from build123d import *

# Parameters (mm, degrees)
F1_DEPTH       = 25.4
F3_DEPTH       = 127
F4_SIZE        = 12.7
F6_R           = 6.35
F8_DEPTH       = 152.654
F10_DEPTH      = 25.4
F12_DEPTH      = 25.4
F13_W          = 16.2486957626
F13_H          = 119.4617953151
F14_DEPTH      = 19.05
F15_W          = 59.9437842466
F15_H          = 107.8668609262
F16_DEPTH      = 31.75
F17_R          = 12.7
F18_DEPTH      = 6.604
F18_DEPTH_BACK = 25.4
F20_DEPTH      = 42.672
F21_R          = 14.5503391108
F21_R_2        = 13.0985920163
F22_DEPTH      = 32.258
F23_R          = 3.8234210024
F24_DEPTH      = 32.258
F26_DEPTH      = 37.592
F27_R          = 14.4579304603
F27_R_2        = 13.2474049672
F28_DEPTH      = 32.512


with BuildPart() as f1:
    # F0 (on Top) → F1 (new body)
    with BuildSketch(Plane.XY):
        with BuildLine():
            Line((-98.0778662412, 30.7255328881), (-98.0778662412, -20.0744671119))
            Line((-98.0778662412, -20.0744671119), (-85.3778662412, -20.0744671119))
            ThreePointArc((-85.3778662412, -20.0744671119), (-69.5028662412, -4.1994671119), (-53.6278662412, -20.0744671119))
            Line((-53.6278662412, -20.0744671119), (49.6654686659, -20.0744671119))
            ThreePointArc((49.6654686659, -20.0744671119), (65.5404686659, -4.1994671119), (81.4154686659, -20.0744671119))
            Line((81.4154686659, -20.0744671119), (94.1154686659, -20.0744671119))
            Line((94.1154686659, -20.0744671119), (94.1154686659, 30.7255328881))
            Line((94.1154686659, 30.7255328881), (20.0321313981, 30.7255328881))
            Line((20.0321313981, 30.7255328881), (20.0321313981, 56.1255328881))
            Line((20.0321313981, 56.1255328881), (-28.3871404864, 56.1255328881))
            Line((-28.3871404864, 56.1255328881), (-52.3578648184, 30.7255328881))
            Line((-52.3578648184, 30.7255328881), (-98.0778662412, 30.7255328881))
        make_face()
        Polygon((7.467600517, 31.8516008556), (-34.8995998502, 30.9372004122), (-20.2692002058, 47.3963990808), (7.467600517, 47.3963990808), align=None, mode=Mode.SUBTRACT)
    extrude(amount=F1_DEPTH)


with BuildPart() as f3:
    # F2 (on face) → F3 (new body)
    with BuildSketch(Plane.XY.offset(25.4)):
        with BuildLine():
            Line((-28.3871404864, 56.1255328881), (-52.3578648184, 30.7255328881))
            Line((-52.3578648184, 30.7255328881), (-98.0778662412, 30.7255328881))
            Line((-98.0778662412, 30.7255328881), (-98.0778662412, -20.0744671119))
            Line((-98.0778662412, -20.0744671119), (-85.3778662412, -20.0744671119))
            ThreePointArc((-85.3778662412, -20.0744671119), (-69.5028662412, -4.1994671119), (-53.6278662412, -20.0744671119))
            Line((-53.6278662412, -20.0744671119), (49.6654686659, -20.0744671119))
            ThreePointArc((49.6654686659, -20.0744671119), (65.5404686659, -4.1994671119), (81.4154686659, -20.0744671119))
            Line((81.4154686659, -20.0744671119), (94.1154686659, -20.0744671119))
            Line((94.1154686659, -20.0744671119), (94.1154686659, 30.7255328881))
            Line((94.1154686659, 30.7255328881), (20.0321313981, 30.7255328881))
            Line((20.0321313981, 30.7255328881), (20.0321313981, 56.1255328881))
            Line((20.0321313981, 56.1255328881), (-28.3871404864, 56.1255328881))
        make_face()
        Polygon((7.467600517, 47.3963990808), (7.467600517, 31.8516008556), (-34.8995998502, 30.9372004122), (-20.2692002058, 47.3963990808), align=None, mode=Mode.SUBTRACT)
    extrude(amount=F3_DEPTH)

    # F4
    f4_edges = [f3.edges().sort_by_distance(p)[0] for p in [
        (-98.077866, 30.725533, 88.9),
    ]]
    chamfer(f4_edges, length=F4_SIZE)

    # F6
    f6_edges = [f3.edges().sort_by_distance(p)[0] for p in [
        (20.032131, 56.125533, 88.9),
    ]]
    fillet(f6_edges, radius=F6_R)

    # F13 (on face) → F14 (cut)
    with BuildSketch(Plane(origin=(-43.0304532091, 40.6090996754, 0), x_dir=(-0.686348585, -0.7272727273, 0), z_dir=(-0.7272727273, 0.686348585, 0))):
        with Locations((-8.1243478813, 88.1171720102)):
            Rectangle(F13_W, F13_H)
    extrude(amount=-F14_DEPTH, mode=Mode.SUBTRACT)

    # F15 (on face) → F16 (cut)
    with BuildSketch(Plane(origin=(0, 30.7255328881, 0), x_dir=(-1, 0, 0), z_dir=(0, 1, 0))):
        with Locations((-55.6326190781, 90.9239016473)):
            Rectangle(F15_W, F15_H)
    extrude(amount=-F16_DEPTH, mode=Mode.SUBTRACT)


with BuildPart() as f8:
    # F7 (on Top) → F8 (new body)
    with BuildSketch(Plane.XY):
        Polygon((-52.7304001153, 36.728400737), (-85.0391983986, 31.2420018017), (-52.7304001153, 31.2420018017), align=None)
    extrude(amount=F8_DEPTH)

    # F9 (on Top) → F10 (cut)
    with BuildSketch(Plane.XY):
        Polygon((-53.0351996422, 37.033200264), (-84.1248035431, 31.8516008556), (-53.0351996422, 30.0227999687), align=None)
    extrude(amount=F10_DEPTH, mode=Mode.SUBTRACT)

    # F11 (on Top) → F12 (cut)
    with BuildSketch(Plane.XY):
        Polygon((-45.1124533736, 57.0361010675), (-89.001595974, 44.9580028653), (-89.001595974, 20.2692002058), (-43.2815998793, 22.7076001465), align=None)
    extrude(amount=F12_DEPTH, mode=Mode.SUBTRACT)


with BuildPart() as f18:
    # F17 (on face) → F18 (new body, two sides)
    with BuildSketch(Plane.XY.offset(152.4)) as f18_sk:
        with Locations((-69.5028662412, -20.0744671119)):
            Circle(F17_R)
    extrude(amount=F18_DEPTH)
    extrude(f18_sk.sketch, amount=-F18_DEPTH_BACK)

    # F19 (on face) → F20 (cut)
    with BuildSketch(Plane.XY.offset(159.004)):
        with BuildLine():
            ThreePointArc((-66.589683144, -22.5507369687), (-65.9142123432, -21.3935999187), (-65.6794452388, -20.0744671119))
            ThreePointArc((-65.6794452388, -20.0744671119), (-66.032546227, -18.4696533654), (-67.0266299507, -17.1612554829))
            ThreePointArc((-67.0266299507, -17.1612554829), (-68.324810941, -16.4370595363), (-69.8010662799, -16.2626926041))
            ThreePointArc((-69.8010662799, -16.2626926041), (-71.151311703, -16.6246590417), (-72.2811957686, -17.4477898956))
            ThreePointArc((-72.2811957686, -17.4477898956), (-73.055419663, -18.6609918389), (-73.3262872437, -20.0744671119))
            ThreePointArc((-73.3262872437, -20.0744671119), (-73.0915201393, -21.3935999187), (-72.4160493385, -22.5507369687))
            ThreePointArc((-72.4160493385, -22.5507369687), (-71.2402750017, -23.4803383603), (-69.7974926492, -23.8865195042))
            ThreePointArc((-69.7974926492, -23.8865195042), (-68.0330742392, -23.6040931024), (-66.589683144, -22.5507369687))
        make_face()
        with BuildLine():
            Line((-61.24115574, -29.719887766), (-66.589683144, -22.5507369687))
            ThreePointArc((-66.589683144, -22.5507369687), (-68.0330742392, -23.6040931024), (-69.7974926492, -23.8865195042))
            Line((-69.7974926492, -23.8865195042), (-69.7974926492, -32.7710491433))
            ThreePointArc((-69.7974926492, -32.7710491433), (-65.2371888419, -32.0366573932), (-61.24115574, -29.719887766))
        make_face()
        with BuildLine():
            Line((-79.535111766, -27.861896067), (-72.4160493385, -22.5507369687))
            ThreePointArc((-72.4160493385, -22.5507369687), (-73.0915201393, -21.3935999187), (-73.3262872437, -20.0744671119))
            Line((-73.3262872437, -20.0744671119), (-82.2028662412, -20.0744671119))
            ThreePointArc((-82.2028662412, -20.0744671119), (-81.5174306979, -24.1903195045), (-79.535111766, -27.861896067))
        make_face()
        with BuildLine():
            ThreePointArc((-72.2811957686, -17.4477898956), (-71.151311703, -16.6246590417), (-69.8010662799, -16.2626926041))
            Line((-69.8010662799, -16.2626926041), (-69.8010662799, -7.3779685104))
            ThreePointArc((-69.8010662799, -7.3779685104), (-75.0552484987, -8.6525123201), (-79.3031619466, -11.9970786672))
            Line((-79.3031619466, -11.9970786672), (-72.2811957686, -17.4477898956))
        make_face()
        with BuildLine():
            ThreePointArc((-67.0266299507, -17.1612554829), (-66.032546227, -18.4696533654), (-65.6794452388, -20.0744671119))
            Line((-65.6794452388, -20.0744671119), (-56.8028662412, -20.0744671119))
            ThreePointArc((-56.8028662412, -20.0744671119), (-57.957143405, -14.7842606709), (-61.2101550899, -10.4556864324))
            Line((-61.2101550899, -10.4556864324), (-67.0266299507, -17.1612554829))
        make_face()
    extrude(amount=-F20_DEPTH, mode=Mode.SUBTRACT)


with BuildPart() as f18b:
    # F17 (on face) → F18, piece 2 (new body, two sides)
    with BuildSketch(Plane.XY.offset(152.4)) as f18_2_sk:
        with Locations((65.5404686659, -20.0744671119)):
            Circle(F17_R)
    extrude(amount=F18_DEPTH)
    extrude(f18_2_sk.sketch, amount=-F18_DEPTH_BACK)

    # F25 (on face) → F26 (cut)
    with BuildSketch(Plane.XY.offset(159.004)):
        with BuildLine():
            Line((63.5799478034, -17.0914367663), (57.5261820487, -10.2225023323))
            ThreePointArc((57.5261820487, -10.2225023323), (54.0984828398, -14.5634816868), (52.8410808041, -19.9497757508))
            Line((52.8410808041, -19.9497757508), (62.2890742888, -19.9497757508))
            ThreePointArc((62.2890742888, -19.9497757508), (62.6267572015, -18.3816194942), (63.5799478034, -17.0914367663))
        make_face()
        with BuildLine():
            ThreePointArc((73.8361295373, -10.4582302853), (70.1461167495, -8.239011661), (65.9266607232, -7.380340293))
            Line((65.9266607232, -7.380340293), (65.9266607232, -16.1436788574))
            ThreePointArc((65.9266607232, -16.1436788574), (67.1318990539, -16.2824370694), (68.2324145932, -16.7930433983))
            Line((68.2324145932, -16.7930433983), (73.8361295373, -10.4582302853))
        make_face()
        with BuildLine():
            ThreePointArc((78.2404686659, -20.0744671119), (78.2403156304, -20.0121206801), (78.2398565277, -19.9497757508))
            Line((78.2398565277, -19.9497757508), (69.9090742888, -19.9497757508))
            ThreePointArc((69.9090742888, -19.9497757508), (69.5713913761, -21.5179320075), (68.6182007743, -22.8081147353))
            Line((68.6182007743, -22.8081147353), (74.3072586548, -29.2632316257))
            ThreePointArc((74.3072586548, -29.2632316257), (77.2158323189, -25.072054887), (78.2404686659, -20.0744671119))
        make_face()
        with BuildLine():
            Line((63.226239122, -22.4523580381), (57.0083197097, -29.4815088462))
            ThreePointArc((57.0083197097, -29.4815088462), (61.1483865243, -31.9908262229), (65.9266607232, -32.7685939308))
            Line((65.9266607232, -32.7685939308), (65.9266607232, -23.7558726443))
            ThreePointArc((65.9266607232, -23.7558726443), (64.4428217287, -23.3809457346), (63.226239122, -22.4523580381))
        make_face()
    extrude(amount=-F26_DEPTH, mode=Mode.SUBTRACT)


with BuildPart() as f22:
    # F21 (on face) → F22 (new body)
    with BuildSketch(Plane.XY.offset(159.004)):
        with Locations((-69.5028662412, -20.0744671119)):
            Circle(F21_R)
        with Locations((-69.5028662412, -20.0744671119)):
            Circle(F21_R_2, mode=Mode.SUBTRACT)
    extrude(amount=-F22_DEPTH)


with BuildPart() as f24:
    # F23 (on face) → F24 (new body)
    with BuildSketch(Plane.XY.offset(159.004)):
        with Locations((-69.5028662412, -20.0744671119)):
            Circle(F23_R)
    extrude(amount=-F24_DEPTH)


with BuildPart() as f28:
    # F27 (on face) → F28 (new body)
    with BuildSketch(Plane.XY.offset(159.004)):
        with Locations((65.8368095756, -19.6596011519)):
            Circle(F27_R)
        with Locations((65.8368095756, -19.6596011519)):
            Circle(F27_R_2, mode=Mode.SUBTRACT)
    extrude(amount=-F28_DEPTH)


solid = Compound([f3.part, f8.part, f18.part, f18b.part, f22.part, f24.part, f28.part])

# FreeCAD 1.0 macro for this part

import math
import FreeCAD as App
import Part
import Sketcher
from FreeCAD import Vector
Q = App.Units.Quantity


def edges_at(feature, points):
    """Names of the edges that pass closest to the given points."""
    edges = feature.Shape.Edges
    near = lambda p: min(range(len(edges)), key=lambda i: edges[i].distToShape(Part.Vertex(*p))[0])
    return sorted({f"Edge{near(p) + 1}" for p in points})

doc = App.newDocument("Part")
body = doc.addObject("PartDesign::Body", "Body")

# Sketch on XY plane
sketch1 = body.newObject("Sketcher::SketchObject", "Sketch")
sketch1.AttachmentSupport = (doc.getObject("XY_Plane"), [""])
sketch1.MapMode = "FlatFace"
sketch1.addGeometry([
    Part.LineSegment(Vector(-98, 31, 0), Vector(-98, -20, 0)),  # 0
    Part.LineSegment(Vector(-98, -20, 0), Vector(-85, -20, 0)),  # 1
    Part.ArcOfCircle(Part.Circle(Vector(-70, -20, 0), Vector(0, 0, 1), 16), math.radians(0), math.radians(180)),  # 2
    Part.LineSegment(Vector(-54, -20, 0), Vector(50, -20, 0)),  # 3
    Part.ArcOfCircle(Part.Circle(Vector(66, -20, 0), Vector(0, 0, 1), 16), math.radians(0), math.radians(180)),  # 4
    Part.LineSegment(Vector(81, -20, 0), Vector(94, -20, 0)),  # 5
    Part.LineSegment(Vector(94, -20, 0), Vector(94, 31, 0)),  # 6
    Part.LineSegment(Vector(94, 31, 0), Vector(20, 31, 0)),  # 7
    Part.LineSegment(Vector(20, 31, 0), Vector(20, 56, 0)),  # 8
    Part.LineSegment(Vector(20, 56, 0), Vector(-28, 56, 0)),  # 9
    Part.LineSegment(Vector(-28, 56, 0), Vector(-52, 31, 0)),  # 10
    Part.LineSegment(Vector(-52, 31, 0), Vector(-98, 31, 0)),  # 11
    Part.LineSegment(Vector(7, 47, 0), Vector(7, 32, 0)),  # 12
    Part.LineSegment(Vector(7, 32, 0), Vector(-35, 31, 0)),  # 13
    Part.LineSegment(Vector(-35, 31, 0), Vector(-20, 47, 0)),  # 14
    Part.LineSegment(Vector(-20, 47, 0), Vector(7, 47, 0)),  # 15
], False)
sketch1.addConstraint([
    Sketcher.Constraint("Coincident", 0, 2, 1, 1),
    Sketcher.Constraint("Coincident", 1, 2, 2, 2),
    Sketcher.Constraint("Coincident", 2, 1, 3, 1),
    Sketcher.Constraint("Coincident", 3, 2, 4, 2),
    Sketcher.Constraint("Coincident", 4, 1, 5, 1),
    Sketcher.Constraint("Coincident", 5, 2, 6, 1),
    Sketcher.Constraint("Coincident", 6, 2, 7, 1),
    Sketcher.Constraint("Coincident", 7, 2, 8, 1),
    Sketcher.Constraint("Coincident", 8, 2, 9, 1),
    Sketcher.Constraint("Coincident", 9, 2, 10, 1),
    Sketcher.Constraint("Coincident", 10, 2, 11, 1),
    Sketcher.Constraint("Coincident", 11, 2, 0, 1),
    Sketcher.Constraint("Coincident", 12, 2, 13, 1),
    Sketcher.Constraint("Coincident", 13, 2, 14, 1),
    Sketcher.Constraint("Coincident", 14, 2, 15, 1),
    Sketcher.Constraint("Coincident", 15, 2, 12, 1),
    Sketcher.Constraint("Vertical", 0),
    Sketcher.Constraint("Horizontal", 1),
    Sketcher.Constraint("Horizontal", 3),
    Sketcher.Constraint("Horizontal", 5),
    Sketcher.Constraint("Vertical", 6),
    Sketcher.Constraint("Horizontal", 7),
    Sketcher.Constraint("Vertical", 8),
    Sketcher.Constraint("Horizontal", 9),
    Sketcher.Constraint("Horizontal", 11),
    Sketcher.Constraint("Vertical", 12),
    Sketcher.Constraint("Horizontal", 15),
    Sketcher.Constraint("Equal", 2, 4),
    Sketcher.Constraint("Horizontal", 2, 3, 4, 3),
    Sketcher.Constraint("Horizontal", 4, 3, 0, 2),
    Sketcher.Constraint("Horizontal", 1, 2, 2, 1),
    Sketcher.Constraint("Horizontal", 3, 2, 4, 1),
    Sketcher.Constraint("Horizontal", 7, 2, 10, 2),
    Sketcher.Constraint("Equal", 1, 5),
    Sketcher.Constraint("DistanceY", 0, 2, 0, 1, Q("2 in")),
    Sketcher.Constraint("DistanceY", 8, 1, 8, 2, Q("1 in")),
    Sketcher.Constraint("DistanceX", 1, 1, 1, 2, Q("0.5 in")),
    Sketcher.Constraint("DistanceX", 11, 2, 11, 1, Q("1.8000001 in")),
    Sketcher.Constraint("Radius", 2, Q("0.625 in")),
    Sketcher.Constraint("DistanceX", 2, 1, 7, 2, Q("2.8999999 in")),
    Sketcher.Constraint("DistanceX", 15, 1, 15, 2, Q("1.092 in")),
    Sketcher.Constraint("DistanceY", 12, 2, 12, 1, Q("0.6119999 in")),
    Sketcher.Constraint("Distance", 10, Q("1.375 in")),
    Sketcher.Constraint("DistanceX", -1, 1, 12, 2, Q("0.294 in")),
    Sketcher.Constraint("DistanceY", -1, 1, 12, 2, Q("1.254 in")),
    Sketcher.Constraint("DistanceX", 13, 2, -1, 1, Q("1.374 in")),
    Sketcher.Constraint("DistanceY", -1, 1, 13, 2, Q("1.218 in")),
    Sketcher.Constraint("DistanceX", 3, 1, 3, 2, 103.293335),
    Sketcher.Constraint("DistanceX", -1, 1, 4, 3, 65.540469),
    Sketcher.Constraint("DistanceY", 2, 3, -1, 1, 20.074467),
])
pad1 = body.newObject("PartDesign::Pad", "Pad")
pad1.Profile = sketch1
pad1.Length = Q("1 in")
body2 = doc.addObject("PartDesign::Body", "Body001")

# Sketch on XY plane
sketch2 = body2.newObject("Sketcher::SketchObject", "Sketch001")
sketch2.AttachmentSupport = (doc.getObject("XY_Plane001"), [""])
sketch2.MapMode = "FlatFace"
sketch2.AttachmentOffset = App.Placement(Vector(0, 0, 1 * 25.4), App.Rotation())
sketch2.addGeometry([
    Part.LineSegment(Vector(-28, 56, 0), Vector(-52, 31, 0)),  # 0
    Part.LineSegment(Vector(-52, 31, 0), Vector(-98, 31, 0)),  # 1
    Part.LineSegment(Vector(-98, 31, 0), Vector(-98, -20, 0)),  # 2
    Part.LineSegment(Vector(-98, -20, 0), Vector(-85, -20, 0)),  # 3
    Part.ArcOfCircle(Part.Circle(Vector(-70, -20, 0), Vector(0, 0, 1), 16), math.radians(0), math.radians(180)),  # 4
    Part.LineSegment(Vector(-54, -20, 0), Vector(50, -20, 0)),  # 5
    Part.ArcOfCircle(Part.Circle(Vector(66, -20, 0), Vector(0, 0, 1), 16), math.radians(0), math.radians(180)),  # 6
    Part.LineSegment(Vector(81, -20, 0), Vector(94, -20, 0)),  # 7
    Part.LineSegment(Vector(94, -20, 0), Vector(94, 31, 0)),  # 8
    Part.LineSegment(Vector(94, 31, 0), Vector(20, 31, 0)),  # 9
    Part.LineSegment(Vector(20, 31, 0), Vector(20, 56, 0)),  # 10
    Part.LineSegment(Vector(20, 56, 0), Vector(-28, 56, 0)),  # 11
    Part.LineSegment(Vector(-20, 47, 0), Vector(7, 47, 0)),  # 12
    Part.LineSegment(Vector(7, 47, 0), Vector(7, 32, 0)),  # 13
    Part.LineSegment(Vector(7, 32, 0), Vector(-35, 31, 0)),  # 14
    Part.LineSegment(Vector(-35, 31, 0), Vector(-20, 47, 0)),  # 15
], False)
sketch2.addConstraint([
    Sketcher.Constraint("Coincident", 0, 2, 1, 1),
    Sketcher.Constraint("Coincident", 1, 2, 2, 1),
    Sketcher.Constraint("Coincident", 2, 2, 3, 1),
    Sketcher.Constraint("Coincident", 3, 2, 4, 2),
    Sketcher.Constraint("Coincident", 4, 1, 5, 1),
    Sketcher.Constraint("Coincident", 5, 2, 6, 2),
    Sketcher.Constraint("Coincident", 6, 1, 7, 1),
    Sketcher.Constraint("Coincident", 7, 2, 8, 1),
    Sketcher.Constraint("Coincident", 8, 2, 9, 1),
    Sketcher.Constraint("Coincident", 9, 2, 10, 1),
    Sketcher.Constraint("Coincident", 10, 2, 11, 1),
    Sketcher.Constraint("Coincident", 11, 2, 0, 1),
    Sketcher.Constraint("Coincident", 12, 2, 13, 1),
    Sketcher.Constraint("Coincident", 13, 2, 14, 1),
    Sketcher.Constraint("Coincident", 14, 2, 15, 1),
    Sketcher.Constraint("Coincident", 15, 2, 12, 1),
    Sketcher.Constraint("Horizontal", 1),
    Sketcher.Constraint("Vertical", 2),
    Sketcher.Constraint("Horizontal", 3),
    Sketcher.Constraint("Horizontal", 5),
    Sketcher.Constraint("Horizontal", 7),
    Sketcher.Constraint("Vertical", 8),
    Sketcher.Constraint("Horizontal", 9),
    Sketcher.Constraint("Vertical", 10),
    Sketcher.Constraint("Horizontal", 11),
    Sketcher.Constraint("Horizontal", 12),
    Sketcher.Constraint("Vertical", 13),
    Sketcher.Constraint("Equal", 4, 6),
    Sketcher.Constraint("Horizontal", 4, 3, 6, 3),
    Sketcher.Constraint("Horizontal", 6, 3, 2, 2),
    Sketcher.Constraint("Horizontal", 3, 2, 4, 1),
    Sketcher.Constraint("Horizontal", 5, 2, 6, 1),
    Sketcher.Constraint("Horizontal", 1, 2, 8, 2),
    Sketcher.Constraint("Equal", 3, 7),
    Sketcher.Constraint("DistanceY", 2, 2, 2, 1, Q("2 in")),
    Sketcher.Constraint("DistanceY", 10, 1, 10, 2, Q("1 in")),
    Sketcher.Constraint("DistanceX", 1, 2, 1, 1, Q("1.8000001 in")),
    Sketcher.Constraint("DistanceX", 3, 1, 3, 2, Q("0.5 in")),
    Sketcher.Constraint("Radius", 4, Q("0.625 in")),
    Sketcher.Constraint("DistanceX", 12, 1, 12, 2, Q("1.092 in")),
    Sketcher.Constraint("DistanceY", 13, 2, 13, 1, Q("0.6119999 in")),
    Sketcher.Constraint("DistanceX", 0, 2, 9, 2, Q("2.8499999 in")),
    Sketcher.Constraint("Distance", 0, Q("1.375 in")),
    Sketcher.Constraint("DistanceX", -1, 1, 12, 2, Q("0.294 in")),
    Sketcher.Constraint("DistanceY", -1, 1, 12, 2, Q("1.866 in")),
    Sketcher.Constraint("DistanceX", 14, 2, -1, 1, Q("1.374 in")),
    Sketcher.Constraint("DistanceY", -1, 1, 14, 2, Q("1.218 in")),
    Sketcher.Constraint("DistanceX", 5, 1, 5, 2, 103.293335),
    Sketcher.Constraint("DistanceX", -1, 1, 6, 3, 65.540469),
    Sketcher.Constraint("DistanceY", 4, 3, -1, 1, 20.074467),
])
pad2 = body2.newObject("PartDesign::Pad", "Pad001")
pad2.Profile = sketch2
pad2.Length = Q("5 in")
doc.recompute()

chamfer = body2.newObject("PartDesign::Chamfer", "Chamfer")
chamfer.Base = (pad2, edges_at(pad2, [(-98.078, 30.726, 88.9)]))
chamfer.Size = Q("0.5 in")
doc.recompute()

fillet = body2.newObject("PartDesign::Fillet", "Fillet")
fillet.Base = (chamfer, edges_at(chamfer, [(20.032, 56.126, 88.9)]))
fillet.Radius = Q("0.25 in")

# Sketch on an angled plane
sketch3 = body2.newObject("Sketcher::SketchObject", "Sketch002")
sketch3.Placement = App.Placement(Vector(-43.030453, 40.6091, 0), App.Rotation(Vector(-0.686348585, -0.727272727, 0), Vector(0, 0, 1), Vector(-0.727272727, 0.686348585, 0), "ZXY"))
sketch3.addGeometry([
    Part.LineSegment(Vector(-16, 148, 0), Vector(-16, 28, 0)),
    Part.LineSegment(Vector(-16, 28, 0), Vector(0, 28, 0)),
    Part.LineSegment(Vector(0, 28, 0), Vector(0, 148, 0)),
    Part.LineSegment(Vector(0, 148, 0), Vector(-16, 148, 0)),
], False)
sketch3.addConstraint([
    Sketcher.Constraint("Coincident", 0, 2, 1, 1),
    Sketcher.Constraint("Coincident", 1, 2, 2, 1),
    Sketcher.Constraint("Coincident", 2, 2, 3, 1),
    Sketcher.Constraint("Coincident", 3, 2, 0, 1),
    Sketcher.Constraint("Vertical", 0),
    Sketcher.Constraint("Horizontal", 1),
    Sketcher.Constraint("Vertical", 2),
    Sketcher.Constraint("Horizontal", 3),
    Sketcher.Constraint("PointOnObject", 1, 2, -2),
    Sketcher.Constraint("DistanceX", 1, 1, 1, 2, 16.248696),
    Sketcher.Constraint("DistanceY", 0, 2, 0, 1, 119.461795),
    Sketcher.Constraint("DistanceY", -1, 1, 2, 2, 147.84807),
])
pocket1 = body2.newObject("PartDesign::Pocket", "Pocket")
pocket1.Profile = sketch3
pocket1.Length = Q("0.75 in")

# Sketch on XZ plane
sketch4 = body2.newObject("Sketcher::SketchObject", "Sketch003")
sketch4.AttachmentSupport = (doc.getObject("XZ_Plane001"), [""])
sketch4.MapMode = "FlatFace"
sketch4.AttachmentOffset = App.Placement(Vector(0, 0, -30.725533), App.Rotation())
sketch4.addGeometry([
    Part.LineSegment(Vector(86, 145, 0), Vector(86, 37, 0)),
    Part.LineSegment(Vector(86, 37, 0), Vector(26, 37, 0)),
    Part.LineSegment(Vector(26, 37, 0), Vector(26, 145, 0)),
    Part.LineSegment(Vector(26, 145, 0), Vector(86, 145, 0)),
], False)
sketch4.addConstraint([
    Sketcher.Constraint("Coincident", 0, 2, 1, 1),
    Sketcher.Constraint("Coincident", 1, 2, 2, 1),
    Sketcher.Constraint("Coincident", 2, 2, 3, 1),
    Sketcher.Constraint("Coincident", 3, 2, 0, 1),
    Sketcher.Constraint("Vertical", 0),
    Sketcher.Constraint("Horizontal", 1),
    Sketcher.Constraint("Vertical", 2),
    Sketcher.Constraint("Horizontal", 3),
    Sketcher.Constraint("DistanceY", 0, 2, 0, 1, 107.866861),
    Sketcher.Constraint("DistanceX", 1, 2, 1, 1, 59.943784),
    Sketcher.Constraint("DistanceX", -1, 1, 0, 2, 85.604511),
    Sketcher.Constraint("DistanceY", -1, 1, 0, 2, 36.990471),
])
pocket2 = body2.newObject("PartDesign::Pocket", "Pocket001")
pocket2.Profile = sketch4
pocket2.Length = Q("1.25 in")
pocket2.Reversed = True
body3 = doc.addObject("PartDesign::Body", "Body002")

# Sketch on XY plane
sketch5 = body3.newObject("Sketcher::SketchObject", "Sketch004")
sketch5.AttachmentSupport = (doc.getObject("XY_Plane002"), [""])
sketch5.MapMode = "FlatFace"
sketch5.addGeometry([
    Part.LineSegment(Vector(-53, 37, 0), Vector(-85, 31, 0)),
    Part.LineSegment(Vector(-85, 31, 0), Vector(-53, 31, 0)),
    Part.LineSegment(Vector(-53, 31, 0), Vector(-53, 37, 0)),
], False)
sketch5.addConstraint([
    Sketcher.Constraint("Coincident", 0, 2, 1, 1),
    Sketcher.Constraint("Coincident", 1, 2, 2, 1),
    Sketcher.Constraint("Coincident", 2, 2, 0, 1),
    Sketcher.Constraint("Horizontal", 1),
    Sketcher.Constraint("Vertical", 2),
    Sketcher.Constraint("DistanceX", 1, 1, 1, 2, Q("1.2719999 in")),
    Sketcher.Constraint("DistanceY", 2, 1, 2, 2, Q("0.216 in")),
    Sketcher.Constraint("DistanceY", -1, 1, 0, 2, Q("1.2300001 in")),
    Sketcher.Constraint("DistanceX", 0, 2, -1, 1, Q("3.3479999 in")),
])
pad3 = body3.newObject("PartDesign::Pad", "Pad002")
pad3.Profile = sketch5
pad3.Length = Q("6.01 in")

# Sketch on XY plane
sketch6 = body3.newObject("Sketcher::SketchObject", "Sketch005")
sketch6.AttachmentSupport = (doc.getObject("XY_Plane002"), [""])
sketch6.MapMode = "FlatFace"
sketch6.addGeometry([
    Part.LineSegment(Vector(-53, 37, 0), Vector(-84, 32, 0)),
    Part.LineSegment(Vector(-84, 32, 0), Vector(-53, 30, 0)),
    Part.LineSegment(Vector(-53, 30, 0), Vector(-53, 37, 0)),
], False)
sketch6.addConstraint([
    Sketcher.Constraint("Coincident", 0, 2, 1, 1),
    Sketcher.Constraint("Coincident", 1, 2, 2, 1),
    Sketcher.Constraint("Coincident", 2, 2, 0, 1),
    Sketcher.Constraint("Vertical", 2),
    Sketcher.Constraint("DistanceY", 2, 1, 2, 2, Q("0.276 in")),
    Sketcher.Constraint("DistanceX", 0, 2, -1, 1, Q("3.3120001 in")),
    Sketcher.Constraint("DistanceY", -1, 1, 0, 2, Q("1.254 in")),
    Sketcher.Constraint("DistanceX", 1, 2, -1, 1, Q("2.088 in")),
    Sketcher.Constraint("DistanceY", -1, 1, 1, 2, Q("1.182 in")),
])
pocket3 = body3.newObject("PartDesign::Pocket", "Pocket002")
pocket3.Profile = sketch6
pocket3.Length = Q("1 in")
pocket3.Reversed = True

# Sketch on XY plane
sketch7 = body3.newObject("Sketcher::SketchObject", "Sketch006")
sketch7.AttachmentSupport = (doc.getObject("XY_Plane002"), [""])
sketch7.MapMode = "FlatFace"
sketch7.addGeometry([
    Part.LineSegment(Vector(-45, 57, 0), Vector(-89, 45, 0)),
    Part.LineSegment(Vector(-89, 45, 0), Vector(-89, 20, 0)),
    Part.LineSegment(Vector(-89, 20, 0), Vector(-43, 23, 0)),
    Part.LineSegment(Vector(-43, 23, 0), Vector(-45, 57, 0)),
], False)
sketch7.addConstraint([
    Sketcher.Constraint("Coincident", 0, 2, 1, 1),
    Sketcher.Constraint("Coincident", 1, 2, 2, 1),
    Sketcher.Constraint("Coincident", 2, 2, 3, 1),
    Sketcher.Constraint("Coincident", 3, 2, 0, 1),
    Sketcher.Constraint("Vertical", 1),
    Sketcher.Constraint("Perpendicular", 2, 3),
    Sketcher.Constraint("DistanceX", 1, 2, 2, 2, Q("1.7999998 in")),
    Sketcher.Constraint("DistanceY", 1, 2, 1, 1, Q("0.9720001 in")),
    Sketcher.Constraint("DistanceY", -1, 1, 0, 2, Q("1.7700001 in")),
    Sketcher.Constraint("DistanceX", 0, 2, -1, 1, Q("3.5039998 in")),
    Sketcher.Constraint("DistanceY", -1, 1, 2, 2, Q("0.894 in")),
    Sketcher.Constraint("DistanceY", -1, 1, 3, 2, 57.036101),
])
pocket4 = body3.newObject("PartDesign::Pocket", "Pocket003")
pocket4.Profile = sketch7
pocket4.Length = Q("1 in")
pocket4.Reversed = True
body4 = doc.addObject("PartDesign::Body", "Body003")
body4.AllowCompound = True

# Sketch on XY plane
sketch8 = body4.newObject("Sketcher::SketchObject", "Sketch007")
sketch8.AttachmentSupport = (doc.getObject("XY_Plane003"), [""])
sketch8.MapMode = "FlatFace"
sketch8.AttachmentOffset = App.Placement(Vector(0, 0, 6 * 25.4), App.Rotation())
sketch8.addGeometry(Part.Circle(Vector(-70, -20, 0), Vector(0, 0, 1), 13), False)
sketch8.addConstraint([
    Sketcher.Constraint("Diameter", 0, Q("1 in")),
    Sketcher.Constraint("DistanceX", 0, 3, -1, 1, 69.502866),
    Sketcher.Constraint("DistanceY", 0, 3, -1, 1, 20.074467),
])
pad4 = body4.newObject("PartDesign::Pad", "Pad003")
pad4.Profile = sketch8
pad4.Type = "TwoLengths"
pad4.Length = Q("0.26 in")
pad4.Length2 = Q("1 in")

# Sketch on XY plane
sketch9 = body4.newObject("Sketcher::SketchObject", "Sketch008")
sketch9.AttachmentSupport = (doc.getObject("XY_Plane003"), [""])
sketch9.MapMode = "FlatFace"
sketch9.AttachmentOffset = App.Placement(Vector(0, 0, 6.26 * 25.4), App.Rotation())
sketch9.addGeometry([
    Part.ArcOfCircle(Part.Circle(Vector(-69.5, -20.1, 0), Vector(0, 0, 1), 3.8), math.radians(-40), math.radians(0)),  # 0
    Part.LineSegment(Vector(-65.7, -20.1, 0), Vector(-56.8, -20.1, 0)),  # 1
    Part.ArcOfCircle(Part.Circle(Vector(-69.5, -20.1, 0), Vector(0, 0, 1), 12.7), math.radians(0), math.radians(49)),  # 2
    Part.LineSegment(Vector(-61.2, -10.5, 0), Vector(-67, -17.2, 0)),  # 3
    Part.ArcOfCircle(Part.Circle(Vector(-69.5, -20.1, 0), Vector(0, 0, 1), 3.8), math.radians(50), math.radians(94)),  # 4
    Part.LineSegment(Vector(-69.8, -16.3, 0), Vector(-69.8, -7.4, 0)),  # 5
    Part.ArcOfCircle(Part.Circle(Vector(-69.5, -20.1, 0), Vector(0, 0, 1), 12.7), math.radians(91), math.radians(141)),  # 6
    Part.LineSegment(Vector(-79.3, -12, 0), Vector(-72.3, -17.4, 0)),  # 7
    Part.ArcOfCircle(Part.Circle(Vector(-69.5, -20.1, 0), Vector(0, 0, 1), 3.8), math.radians(137), math.radians(180)),  # 8
    Part.LineSegment(Vector(-73.3, -20.1, 0), Vector(-82.2, -20.1, 0)),  # 9
    Part.ArcOfCircle(Part.Circle(Vector(-69.5, -20.1, 0), Vector(0, 0, 1), 12.7), math.radians(180), math.radians(218)),  # 10
    Part.LineSegment(Vector(-79.5, -27.9, 0), Vector(-72.4, -22.6, 0)),  # 11
    Part.ArcOfCircle(Part.Circle(Vector(-69.5, -20.1, 0), Vector(0, 0, 1), 3.8), math.radians(-140), math.radians(-94)),  # 12
    Part.LineSegment(Vector(-69.8, -23.9, 0), Vector(-69.8, -32.8, 0)),  # 13
    Part.ArcOfCircle(Part.Circle(Vector(-69.5, -20.1, 0), Vector(0, 0, 1), 12.7), math.radians(-91), math.radians(-49)),  # 14
    Part.LineSegment(Vector(-61.2, -29.7, 0), Vector(-66.6, -22.6, 0)),  # 15
], False)
sketch9.addConstraint([
    Sketcher.Constraint("Coincident", 0, 2, 1, 1),
    Sketcher.Constraint("Coincident", 1, 2, 2, 1),
    Sketcher.Constraint("Coincident", 2, 2, 3, 1),
    Sketcher.Constraint("Coincident", 3, 2, 4, 1),
    Sketcher.Constraint("Coincident", 4, 2, 5, 1),
    Sketcher.Constraint("Coincident", 5, 2, 6, 1),
    Sketcher.Constraint("Coincident", 6, 2, 7, 1),
    Sketcher.Constraint("Coincident", 7, 2, 8, 1),
    Sketcher.Constraint("Coincident", 8, 2, 9, 1),
    Sketcher.Constraint("Coincident", 9, 2, 10, 1),
    Sketcher.Constraint("Coincident", 10, 2, 11, 1),
    Sketcher.Constraint("Coincident", 11, 2, 12, 1),
    Sketcher.Constraint("Coincident", 12, 2, 13, 1),
    Sketcher.Constraint("Coincident", 13, 2, 14, 1),
    Sketcher.Constraint("Coincident", 14, 2, 15, 1),
    Sketcher.Constraint("Coincident", 15, 2, 0, 1),
    Sketcher.Constraint("Horizontal", 1),
    Sketcher.Constraint("Vertical", 5),
    Sketcher.Constraint("Horizontal", 9),
    Sketcher.Constraint("Vertical", 13),
    Sketcher.Constraint("Coincident", 2, 3, 0, 3),
    Sketcher.Constraint("Coincident", 4, 3, 0, 3),
    Sketcher.Constraint("Coincident", 6, 3, 0, 3),
    Sketcher.Constraint("Coincident", 8, 3, 0, 3),
    Sketcher.Constraint("Coincident", 10, 3, 0, 3),
    Sketcher.Constraint("Coincident", 12, 3, 0, 3),
    Sketcher.Constraint("Coincident", 14, 3, 0, 3),
    Sketcher.Constraint("Equal", 0, 4),
    Sketcher.Constraint("Equal", 2, 6),
    Sketcher.Constraint("Equal", 4, 8),
    Sketcher.Constraint("Equal", 6, 10),
    Sketcher.Constraint("Equal", 8, 12),
    Sketcher.Constraint("Equal", 10, 14),
    Sketcher.Constraint("Perpendicular", 11, 15),
    Sketcher.Constraint("Horizontal", 14, 3, 0, 2),
    Sketcher.Constraint("Horizontal", 1, 2, 8, 2),
    Sketcher.Constraint("Horizontal", 11, 2, 15, 2),
    Sketcher.Constraint("Radius", 2, Q("0.5 in")),
    Sketcher.Constraint("Radius", 0, 3.823421),
    Sketcher.Constraint("DistanceY", 13, 2, 13, 1, 8.88453),
    Sketcher.Constraint("DistanceX", 4, 2, 12, 3, 0.2982),
    Sketcher.Constraint("Distance", 7, 8.889222),
    Sketcher.Constraint("DistanceX", 3, 2, -1, 1, 67.02663),
    Sketcher.Constraint("DistanceY", 5, 2, -1, 1, 7.377969),
    Sketcher.Constraint("DistanceX", 6, 2, -1, 1, 79.303162),
    Sketcher.Constraint("DistanceY", 6, 2, -1, 1, 11.997079),
    Sketcher.Constraint("DistanceX", 10, 2, -1, 1, 79.535112),
    Sketcher.Constraint("DistanceX", 11, 2, -1, 1, 72.416049),
    Sketcher.Constraint("DistanceX", 2, 2, 1, 2, 4.407289),
])
pocket5 = body4.newObject("PartDesign::Pocket", "Pocket004")
pocket5.Profile = sketch9
pocket5.Length = Q("1.68 in")
body5 = doc.addObject("PartDesign::Body", "Body004")

# Sketch on XY plane
sketch10 = body5.newObject("Sketcher::SketchObject", "Sketch009")
sketch10.AttachmentSupport = (doc.getObject("XY_Plane004"), [""])
sketch10.MapMode = "FlatFace"
sketch10.AttachmentOffset = App.Placement(Vector(0, 0, 6 * 25.4), App.Rotation())
sketch10.addGeometry(Part.Circle(Vector(66, -20, 0), Vector(0, 0, 1), 13), False)
sketch10.addConstraint([
    Sketcher.Constraint("Diameter", 0, Q("1 in")),
    Sketcher.Constraint("DistanceX", -1, 1, 0, 3, 65.540469),
    Sketcher.Constraint("DistanceY", 0, 3, -1, 1, 20.074467),
])
pad5 = body5.newObject("PartDesign::Pad", "Pad004")
pad5.Profile = sketch10
pad5.Type = "TwoLengths"
pad5.Length = Q("0.26 in")
pad5.Length2 = Q("1 in")

# Sketch on XY plane
sketch11 = body5.newObject("Sketcher::SketchObject", "Sketch010")
sketch11.AttachmentSupport = (doc.getObject("XY_Plane004"), [""])
sketch11.MapMode = "FlatFace"
sketch11.AttachmentOffset = App.Placement(Vector(0, 0, 6.26 * 25.4), App.Rotation())
sketch11.addGeometry([
    Part.LineSegment(Vector(63.58, -17.09, 0), Vector(57.53, -10.22, 0)),  # 0
    Part.ArcOfCircle(Part.Circle(Vector(65.54, -20.07, 0), Vector(0, 0, 1), 12.7), math.radians(129), math.radians(179)),  # 1
    Part.LineSegment(Vector(52.84, -19.95, 0), Vector(62.29, -19.95, 0)),  # 2
    Part.ArcOfCircle(Part.Circle(Vector(66.1, -19.95, 0), Vector(0, 0, 1), 3.81), math.radians(131), math.radians(180)),  # 3
    Part.ArcOfCircle(Part.Circle(Vector(65.54, -20.07, 0), Vector(0, 0, 1), 12.7), math.radians(49), math.radians(88)),  # 4
    Part.LineSegment(Vector(65.93, -7.38, 0), Vector(65.93, -16.14, 0)),  # 5
    Part.ArcOfCircle(Part.Circle(Vector(66.1, -19.95, 0), Vector(0, 0, 1), 3.81), math.radians(56), math.radians(93)),  # 6
    Part.LineSegment(Vector(68.23, -16.79, 0), Vector(73.84, -10.46, 0)),  # 7
    Part.ArcOfCircle(Part.Circle(Vector(65.54, -20.07, 0), Vector(0, 0, 1), 12.7), math.radians(0), math.radians(0.56)),  # 8
    Part.LineSegment(Vector(78.24, -19.95, 0), Vector(69.91, -19.95, 0)),  # 9
    Part.ArcOfCircle(Part.Circle(Vector(66.1, -19.95, 0), Vector(0, 0, 1), 3.81), math.radians(-49), math.radians(0)),  # 10
    Part.LineSegment(Vector(68.62, -22.81, 0), Vector(74.31, -29.26, 0)),  # 11
    Part.ArcOfCircle(Part.Circle(Vector(65.54, -20.07, 0), Vector(0, 0, 1), 12.7), math.radians(-46), math.radians(0)),  # 12
    Part.LineSegment(Vector(63.23, -22.45, 0), Vector(57.01, -29.48, 0)),  # 13
    Part.ArcOfCircle(Part.Circle(Vector(65.54, -20.07, 0), Vector(0, 0, 1), 12.7), math.radians(-132), math.radians(-88)),  # 14
    Part.LineSegment(Vector(65.93, -32.77, 0), Vector(65.93, -23.76, 0)),  # 15
    Part.ArcOfCircle(Part.Circle(Vector(66.1, -19.95, 0), Vector(0, 0, 1), 3.81), math.radians(-139), math.radians(-93)),  # 16
], False)
sketch11.addConstraint([
    Sketcher.Constraint("Coincident", 0, 2, 1, 1),
    Sketcher.Constraint("Coincident", 1, 2, 2, 1),
    Sketcher.Constraint("Coincident", 2, 2, 3, 2),
    Sketcher.Constraint("Coincident", 3, 1, 0, 1),
    Sketcher.Constraint("Coincident", 4, 2, 5, 1),
    Sketcher.Constraint("Coincident", 5, 2, 6, 2),
    Sketcher.Constraint("Coincident", 6, 1, 7, 1),
    Sketcher.Constraint("Coincident", 7, 2, 4, 1),
    Sketcher.Constraint("Coincident", 8, 2, 9, 1),
    Sketcher.Constraint("Coincident", 9, 2, 10, 2),
    Sketcher.Constraint("Coincident", 10, 1, 11, 1),
    Sketcher.Constraint("Coincident", 11, 2, 12, 1),
    Sketcher.Constraint("Tangent", 12, 2, 8, 1),
    Sketcher.Constraint("Coincident", 13, 2, 14, 1),
    Sketcher.Constraint("Coincident", 14, 2, 15, 1),
    Sketcher.Constraint("Coincident", 15, 2, 16, 2),
    Sketcher.Constraint("Coincident", 16, 1, 13, 1),
    Sketcher.Constraint("Horizontal", 2),
    Sketcher.Constraint("Vertical", 5),
    Sketcher.Constraint("Horizontal", 9),
    Sketcher.Constraint("Vertical", 15),
    Sketcher.Constraint("Coincident", 4, 3, 1, 3),
    Sketcher.Constraint("Coincident", 6, 3, 3, 3),
    Sketcher.Constraint("Coincident", 8, 3, 1, 3),
    Sketcher.Constraint("Coincident", 10, 3, 3, 3),
    Sketcher.Constraint("Coincident", 14, 3, 1, 3),
    Sketcher.Constraint("Coincident", 16, 3, 3, 3),
    Sketcher.Constraint("Equal", 1, 4),
    Sketcher.Constraint("Equal", 3, 6),
    Sketcher.Constraint("Equal", 6, 10),
    Sketcher.Constraint("Equal", 4, 12),
    Sketcher.Constraint("Equal", 12, 14),
    Sketcher.Constraint("Equal", 10, 16),
    Sketcher.Constraint("Parallel", 0, 11),
    Sketcher.Constraint("Parallel", 7, 13),
    Sketcher.Constraint("Horizontal", 16, 3, 1, 2),
    Sketcher.Constraint("Horizontal", 2, 2, 8, 2),
    Sketcher.Constraint("Horizontal", 14, 3, 12, 2),
    Sketcher.Constraint("Vertical", 5, 2, 14, 2),
    Sketcher.Constraint("Radius", 1, Q("0.5 in")),
    Sketcher.Constraint("Radius", 8, Q("0.5000001 in")),
    Sketcher.Constraint("Radius", 3, Q("0.15 in")),
    Sketcher.Constraint("DistanceY", 5, 2, 5, 1, 8.763339),
    Sketcher.Constraint("DistanceY", 15, 1, 15, 2, 9.012721),
    Sketcher.Constraint("DistanceX", -1, 1, 10, 1, 68.618201),
    Sketcher.Constraint("DistanceX", 1, 2, 0, 2, 4.685101),
    Sketcher.Constraint("Distance", 0, 9.155891),
    Sketcher.Constraint("Distance", 7, 8.457628),
    Sketcher.Constraint("Distance", 13, 9.384641),
    Sketcher.Constraint("DistanceX", -1, 1, 1, 3, 65.540469),
    Sketcher.Constraint("DistanceY", 4, 2, -1, 1, 7.38034),
    Sketcher.Constraint("DistanceX", -1, 1, 7, 2, 73.83613),
    Sketcher.Constraint("DistanceX", -1, 1, 11, 2, 74.307259),
])
pocket6 = body5.newObject("PartDesign::Pocket", "Pocket005")
pocket6.Profile = sketch11
pocket6.Length = Q("1.48 in")
body6 = doc.addObject("PartDesign::Body", "Body005")

# Sketch on XY plane
sketch12 = body6.newObject("Sketcher::SketchObject", "Sketch011")
sketch12.AttachmentSupport = (doc.getObject("XY_Plane005"), [""])
sketch12.MapMode = "FlatFace"
sketch12.AttachmentOffset = App.Placement(Vector(0, 0, 6.26 * 25.4), App.Rotation())
sketch12.addGeometry([
    Part.Circle(Vector(-70, -20, 0), Vector(0, 0, 1), 15),
    Part.Circle(Vector(-70, -20, 0), Vector(0, 0, 1), 13),
], False)
sketch12.addConstraint([
    Sketcher.Constraint("Coincident", 1, 3, 0, 3),
    Sketcher.Constraint("Diameter", 0, 29.100678),
    Sketcher.Constraint("Diameter", 1, 26.197184),
    Sketcher.Constraint("DistanceX", 0, 3, -1, 1, 69.502866),
    Sketcher.Constraint("DistanceY", 0, 3, -1, 1, 20.074467),
])
pad6 = body6.newObject("PartDesign::Pad", "Pad005")
pad6.Profile = sketch12
pad6.Length = Q("1.27 in")
pad6.Reversed = True
body7 = doc.addObject("PartDesign::Body", "Body006")

# Sketch on XY plane
sketch13 = body7.newObject("Sketcher::SketchObject", "Sketch012")
sketch13.AttachmentSupport = (doc.getObject("XY_Plane006"), [""])
sketch13.MapMode = "FlatFace"
sketch13.AttachmentOffset = App.Placement(Vector(0, 0, 6.26 * 25.4), App.Rotation())
sketch13.addGeometry(Part.Circle(Vector(-69.5, -20.1, 0), Vector(0, 0, 1), 3.8), False)
sketch13.addConstraint([
    Sketcher.Constraint("Diameter", 0, 7.646842),
    Sketcher.Constraint("DistanceX", 0, 3, -1, 1, 69.502866),
    Sketcher.Constraint("DistanceY", 0, 3, -1, 1, 20.074467),
])
pad7 = body7.newObject("PartDesign::Pad", "Pad006")
pad7.Profile = sketch13
pad7.Length = Q("1.27 in")
pad7.Reversed = True
body8 = doc.addObject("PartDesign::Body", "Body007")

# Sketch on XY plane
sketch14 = body8.newObject("Sketcher::SketchObject", "Sketch013")
sketch14.AttachmentSupport = (doc.getObject("XY_Plane007"), [""])
sketch14.MapMode = "FlatFace"
sketch14.AttachmentOffset = App.Placement(Vector(0, 0, 6.26 * 25.4), App.Rotation())
sketch14.addGeometry([
    Part.Circle(Vector(66, -20, 0), Vector(0, 0, 1), 14),
    Part.Circle(Vector(66, -20, 0), Vector(0, 0, 1), 13),
], False)
sketch14.addConstraint([
    Sketcher.Constraint("Coincident", 1, 3, 0, 3),
    Sketcher.Constraint("Diameter", 0, 28.915861),
    Sketcher.Constraint("Diameter", 1, 26.49481),
    Sketcher.Constraint("DistanceY", 0, 3, -1, 1, Q("0.774 in")),
    Sketcher.Constraint("DistanceX", -1, 1, 0, 3, 65.83681),
])
pad8 = body8.newObject("PartDesign::Pad", "Pad007")
pad8.Profile = sketch14
pad8.Length = Q("1.28 in")
pad8.Reversed = True
body.Visibility = False

doc.recompute()
